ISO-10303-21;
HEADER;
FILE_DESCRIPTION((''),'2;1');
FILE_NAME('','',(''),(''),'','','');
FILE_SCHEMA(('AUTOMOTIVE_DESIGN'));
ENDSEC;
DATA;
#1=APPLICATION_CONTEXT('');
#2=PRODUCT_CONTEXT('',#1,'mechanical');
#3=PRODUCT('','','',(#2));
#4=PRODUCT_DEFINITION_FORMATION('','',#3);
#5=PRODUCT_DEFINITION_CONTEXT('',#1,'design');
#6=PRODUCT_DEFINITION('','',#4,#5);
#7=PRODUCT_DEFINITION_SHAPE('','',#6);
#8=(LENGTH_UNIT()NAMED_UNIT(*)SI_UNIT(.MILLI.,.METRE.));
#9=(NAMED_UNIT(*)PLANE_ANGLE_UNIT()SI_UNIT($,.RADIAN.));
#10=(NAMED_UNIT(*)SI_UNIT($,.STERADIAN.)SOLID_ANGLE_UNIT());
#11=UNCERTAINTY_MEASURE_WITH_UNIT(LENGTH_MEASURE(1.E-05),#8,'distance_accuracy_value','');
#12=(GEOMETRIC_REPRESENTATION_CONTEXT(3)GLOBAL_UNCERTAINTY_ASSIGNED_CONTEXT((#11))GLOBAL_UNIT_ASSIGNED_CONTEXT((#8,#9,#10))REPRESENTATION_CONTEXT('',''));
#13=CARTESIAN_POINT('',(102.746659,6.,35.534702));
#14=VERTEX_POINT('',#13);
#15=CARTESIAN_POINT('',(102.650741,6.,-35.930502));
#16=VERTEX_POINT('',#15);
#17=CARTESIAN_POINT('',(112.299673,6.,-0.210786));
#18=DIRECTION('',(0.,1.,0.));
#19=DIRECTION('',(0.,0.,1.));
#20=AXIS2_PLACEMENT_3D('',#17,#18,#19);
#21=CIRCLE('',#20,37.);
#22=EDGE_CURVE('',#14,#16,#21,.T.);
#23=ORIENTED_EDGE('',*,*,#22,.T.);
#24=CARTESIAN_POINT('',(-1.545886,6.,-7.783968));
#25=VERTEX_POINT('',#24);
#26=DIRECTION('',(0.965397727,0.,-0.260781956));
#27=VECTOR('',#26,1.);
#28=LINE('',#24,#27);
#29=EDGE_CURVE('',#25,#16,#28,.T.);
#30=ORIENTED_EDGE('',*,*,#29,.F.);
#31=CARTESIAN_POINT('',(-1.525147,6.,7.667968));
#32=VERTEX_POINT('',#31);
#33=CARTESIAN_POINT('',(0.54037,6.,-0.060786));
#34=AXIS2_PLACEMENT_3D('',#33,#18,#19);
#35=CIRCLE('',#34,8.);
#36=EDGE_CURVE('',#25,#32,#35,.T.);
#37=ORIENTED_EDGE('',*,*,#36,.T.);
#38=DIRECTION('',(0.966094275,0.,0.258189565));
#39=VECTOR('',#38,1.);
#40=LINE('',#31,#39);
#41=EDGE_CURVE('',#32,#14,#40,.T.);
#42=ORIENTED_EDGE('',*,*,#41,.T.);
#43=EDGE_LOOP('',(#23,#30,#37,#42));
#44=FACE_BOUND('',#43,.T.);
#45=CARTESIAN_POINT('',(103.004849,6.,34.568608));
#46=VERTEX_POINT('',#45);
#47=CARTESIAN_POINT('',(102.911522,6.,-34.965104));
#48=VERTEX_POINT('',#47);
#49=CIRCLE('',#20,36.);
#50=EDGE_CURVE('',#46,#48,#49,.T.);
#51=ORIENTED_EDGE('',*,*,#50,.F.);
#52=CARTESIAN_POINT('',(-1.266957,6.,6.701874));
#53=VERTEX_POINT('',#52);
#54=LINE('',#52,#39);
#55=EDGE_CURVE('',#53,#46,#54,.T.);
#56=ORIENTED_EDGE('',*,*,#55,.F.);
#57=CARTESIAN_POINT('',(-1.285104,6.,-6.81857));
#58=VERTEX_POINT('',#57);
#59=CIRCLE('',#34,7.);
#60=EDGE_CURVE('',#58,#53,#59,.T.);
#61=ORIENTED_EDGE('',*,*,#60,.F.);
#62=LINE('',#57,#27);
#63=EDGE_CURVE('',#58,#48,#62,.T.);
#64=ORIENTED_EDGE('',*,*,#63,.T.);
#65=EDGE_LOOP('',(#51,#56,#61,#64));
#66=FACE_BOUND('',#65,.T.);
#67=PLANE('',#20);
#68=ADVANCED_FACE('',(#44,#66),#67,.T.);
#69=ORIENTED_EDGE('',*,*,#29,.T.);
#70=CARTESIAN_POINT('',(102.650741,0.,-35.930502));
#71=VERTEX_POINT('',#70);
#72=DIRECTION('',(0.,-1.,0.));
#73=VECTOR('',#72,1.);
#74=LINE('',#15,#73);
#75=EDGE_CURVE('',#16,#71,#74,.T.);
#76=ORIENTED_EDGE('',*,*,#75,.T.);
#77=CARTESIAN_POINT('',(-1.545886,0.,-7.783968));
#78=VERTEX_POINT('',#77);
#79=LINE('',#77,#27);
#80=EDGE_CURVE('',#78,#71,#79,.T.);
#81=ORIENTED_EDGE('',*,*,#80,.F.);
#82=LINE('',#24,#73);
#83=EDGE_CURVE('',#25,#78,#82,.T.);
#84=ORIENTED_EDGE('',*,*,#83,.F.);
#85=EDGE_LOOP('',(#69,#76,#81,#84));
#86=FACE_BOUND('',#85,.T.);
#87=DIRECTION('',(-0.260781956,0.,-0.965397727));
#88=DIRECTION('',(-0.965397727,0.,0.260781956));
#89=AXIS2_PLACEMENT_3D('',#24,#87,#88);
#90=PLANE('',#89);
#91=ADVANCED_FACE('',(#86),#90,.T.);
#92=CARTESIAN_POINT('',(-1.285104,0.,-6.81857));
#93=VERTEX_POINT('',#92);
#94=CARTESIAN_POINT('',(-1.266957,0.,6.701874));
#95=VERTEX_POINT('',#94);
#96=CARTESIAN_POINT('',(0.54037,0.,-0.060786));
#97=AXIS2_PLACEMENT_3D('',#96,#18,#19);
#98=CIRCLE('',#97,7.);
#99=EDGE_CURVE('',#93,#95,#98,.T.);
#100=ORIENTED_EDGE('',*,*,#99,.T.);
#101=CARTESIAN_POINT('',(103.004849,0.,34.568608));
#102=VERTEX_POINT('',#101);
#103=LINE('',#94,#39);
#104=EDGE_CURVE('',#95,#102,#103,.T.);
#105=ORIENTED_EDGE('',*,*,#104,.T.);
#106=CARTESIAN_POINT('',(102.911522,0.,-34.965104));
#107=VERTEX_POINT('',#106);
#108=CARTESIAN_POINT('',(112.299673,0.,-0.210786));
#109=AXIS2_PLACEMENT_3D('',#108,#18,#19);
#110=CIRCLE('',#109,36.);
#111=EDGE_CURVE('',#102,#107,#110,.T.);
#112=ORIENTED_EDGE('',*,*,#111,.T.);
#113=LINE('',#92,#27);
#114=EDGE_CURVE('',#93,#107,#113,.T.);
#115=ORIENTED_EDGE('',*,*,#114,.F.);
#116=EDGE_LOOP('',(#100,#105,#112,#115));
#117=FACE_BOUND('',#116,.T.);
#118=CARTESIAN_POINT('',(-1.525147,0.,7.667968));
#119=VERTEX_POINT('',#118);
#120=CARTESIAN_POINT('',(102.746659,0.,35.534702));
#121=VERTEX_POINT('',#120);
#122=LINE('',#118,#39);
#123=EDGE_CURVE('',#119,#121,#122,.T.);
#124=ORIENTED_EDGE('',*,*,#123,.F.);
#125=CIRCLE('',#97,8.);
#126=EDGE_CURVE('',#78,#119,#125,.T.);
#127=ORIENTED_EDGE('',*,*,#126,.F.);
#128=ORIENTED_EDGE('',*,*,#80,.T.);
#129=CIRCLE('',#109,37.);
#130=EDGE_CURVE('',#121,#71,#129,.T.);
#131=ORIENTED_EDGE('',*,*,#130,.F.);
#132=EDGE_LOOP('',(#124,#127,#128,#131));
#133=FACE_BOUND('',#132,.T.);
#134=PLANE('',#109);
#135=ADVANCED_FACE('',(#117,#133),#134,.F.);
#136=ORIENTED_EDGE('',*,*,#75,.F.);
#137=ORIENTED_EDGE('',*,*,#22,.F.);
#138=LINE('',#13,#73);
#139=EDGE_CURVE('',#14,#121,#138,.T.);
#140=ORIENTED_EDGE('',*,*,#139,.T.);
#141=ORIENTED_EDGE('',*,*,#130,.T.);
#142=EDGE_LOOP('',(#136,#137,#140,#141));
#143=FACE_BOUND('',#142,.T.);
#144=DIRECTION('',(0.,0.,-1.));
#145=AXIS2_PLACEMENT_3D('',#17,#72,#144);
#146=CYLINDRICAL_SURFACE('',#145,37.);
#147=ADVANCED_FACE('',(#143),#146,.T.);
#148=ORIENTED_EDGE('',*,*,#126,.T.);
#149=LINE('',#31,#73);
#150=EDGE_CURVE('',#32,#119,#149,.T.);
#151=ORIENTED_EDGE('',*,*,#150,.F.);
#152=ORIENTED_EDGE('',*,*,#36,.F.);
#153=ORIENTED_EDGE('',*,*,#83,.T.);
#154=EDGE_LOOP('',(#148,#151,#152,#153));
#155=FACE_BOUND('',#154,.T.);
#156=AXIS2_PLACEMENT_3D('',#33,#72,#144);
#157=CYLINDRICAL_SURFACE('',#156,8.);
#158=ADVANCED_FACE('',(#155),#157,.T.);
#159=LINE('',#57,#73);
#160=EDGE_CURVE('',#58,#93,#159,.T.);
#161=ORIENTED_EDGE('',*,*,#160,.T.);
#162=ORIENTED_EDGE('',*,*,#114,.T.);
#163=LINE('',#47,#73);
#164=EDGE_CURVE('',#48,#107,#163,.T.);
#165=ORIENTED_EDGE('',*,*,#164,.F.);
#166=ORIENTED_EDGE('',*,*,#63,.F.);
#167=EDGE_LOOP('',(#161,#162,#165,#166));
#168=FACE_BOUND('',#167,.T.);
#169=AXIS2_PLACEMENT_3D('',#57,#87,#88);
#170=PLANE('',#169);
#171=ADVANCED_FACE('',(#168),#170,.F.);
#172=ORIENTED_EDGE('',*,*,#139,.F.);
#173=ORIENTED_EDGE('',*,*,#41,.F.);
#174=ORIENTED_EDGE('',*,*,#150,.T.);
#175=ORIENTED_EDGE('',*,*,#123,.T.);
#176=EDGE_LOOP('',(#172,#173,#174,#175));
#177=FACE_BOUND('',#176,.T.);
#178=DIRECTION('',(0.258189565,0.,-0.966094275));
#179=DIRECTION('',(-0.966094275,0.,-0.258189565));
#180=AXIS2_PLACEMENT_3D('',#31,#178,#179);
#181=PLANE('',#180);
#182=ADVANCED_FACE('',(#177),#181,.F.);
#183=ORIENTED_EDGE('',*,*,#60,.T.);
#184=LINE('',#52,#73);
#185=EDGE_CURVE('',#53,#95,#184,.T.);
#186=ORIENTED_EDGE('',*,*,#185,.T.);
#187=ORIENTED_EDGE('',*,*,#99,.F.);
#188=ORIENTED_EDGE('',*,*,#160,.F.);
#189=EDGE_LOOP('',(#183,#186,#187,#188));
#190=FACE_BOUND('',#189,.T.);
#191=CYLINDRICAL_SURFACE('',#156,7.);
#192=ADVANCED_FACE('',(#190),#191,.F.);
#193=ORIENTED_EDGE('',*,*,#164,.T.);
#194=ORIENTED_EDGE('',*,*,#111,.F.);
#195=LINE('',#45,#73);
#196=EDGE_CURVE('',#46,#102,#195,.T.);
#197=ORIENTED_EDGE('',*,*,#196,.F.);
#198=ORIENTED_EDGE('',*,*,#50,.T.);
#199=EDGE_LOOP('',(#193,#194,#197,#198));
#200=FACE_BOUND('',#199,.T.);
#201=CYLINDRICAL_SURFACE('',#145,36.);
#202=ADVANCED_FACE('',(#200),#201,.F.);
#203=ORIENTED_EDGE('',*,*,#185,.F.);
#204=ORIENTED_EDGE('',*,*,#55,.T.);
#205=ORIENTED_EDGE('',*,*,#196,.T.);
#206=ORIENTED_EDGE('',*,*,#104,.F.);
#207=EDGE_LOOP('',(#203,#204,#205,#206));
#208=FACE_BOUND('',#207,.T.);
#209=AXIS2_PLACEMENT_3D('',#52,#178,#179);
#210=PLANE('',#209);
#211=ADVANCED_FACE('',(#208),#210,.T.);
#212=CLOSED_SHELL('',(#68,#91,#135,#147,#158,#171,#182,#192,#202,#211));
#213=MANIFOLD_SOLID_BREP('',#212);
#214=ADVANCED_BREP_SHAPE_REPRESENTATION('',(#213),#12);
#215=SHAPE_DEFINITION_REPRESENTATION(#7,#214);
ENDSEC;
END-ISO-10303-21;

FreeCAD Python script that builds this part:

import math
import FreeCAD as App
import Part
import Sketcher

V = App.Vector

doc = App.newDocument("Part")
body = doc.addObject("PartDesign::Body", "Body")

sketch1 = doc.addObject("Sketcher::SketchObject", "Sketch")
body.addObject(sketch1)
sketch1.AttachmentSupport = (doc.XZ_Plane, [""])
sketch1.MapMode = "FlatFace"
sketch1.addGeometry([
    Part.LineSegment(V(-2, 8, 0), V(103, 36, 0)),
    Part.ArcOfCircle(Part.Circle(V(112, 0, 0), V(0, 0, 1), 37), math.radians(-105), math.radians(105)),
    Part.LineSegment(V(103, -36, 0), V(-2, -8, 0)),
    Part.ArcOfCircle(Part.Circle(V(1, 0, 0), V(0, 0, 1), 8), math.radians(105), math.radians(255)),
    Part.LineSegment(V(103, 35, 0), V(-1, 7, 0)),
    Part.ArcOfCircle(Part.Circle(V(1, 0, 0), V(0, 0, 1), 7), math.radians(105), math.radians(255)),
    Part.LineSegment(V(-1, -7, 0), V(103, -35, 0)),
    Part.ArcOfCircle(Part.Circle(V(112, 0, 0), V(0, 0, 1), 36), math.radians(-105), math.radians(105)),
], False)
sketch1.addConstraint([
    Sketcher.Constraint("Tangent", 0, 2, 1, 2),
    Sketcher.Constraint("Tangent", 1, 1, 2, 1),
    Sketcher.Constraint("Tangent", 2, 2, 3, 2),
    Sketcher.Constraint("Tangent", 3, 1, 0, 1),
    Sketcher.Constraint("Tangent", 4, 2, 5, 1),
    Sketcher.Constraint("Tangent", 5, 2, 6, 1),
    Sketcher.Constraint("Tangent", 6, 2, 7, 1),
    Sketcher.Constraint("Tangent", 7, 2, 4, 1),
    Sketcher.Constraint("Coincident", 5, 3, 3, 3),
    Sketcher.Constraint("Coincident", 7, 3, 1, 3),
    Sketcher.Constraint("Parallel", 0, 4),
    Sketcher.Constraint("Radius", 1, 37.0),
    Sketcher.Constraint("Radius", 3, 8.0),
    Sketcher.Constraint("Radius", 5, 7.0),
    Sketcher.Constraint("DistanceY", 1, 3, 3, 3, 0.15),
    Sketcher.Constraint("DistanceY", 1, 1, -1, 1, 35.930502),
    Sketcher.Constraint("DistanceX", -1, 1, 3, 3, 0.54037),
    Sketcher.Constraint("DistanceX", -1, 1, 0, 2, 102.746659),
])
pad1 = doc.addObject("PartDesign::Pad", "Pad")
body.addObject(pad1)
pad1.Profile = sketch1
pad1.Length = 6
pad1.Reversed = True

doc.recompute()
